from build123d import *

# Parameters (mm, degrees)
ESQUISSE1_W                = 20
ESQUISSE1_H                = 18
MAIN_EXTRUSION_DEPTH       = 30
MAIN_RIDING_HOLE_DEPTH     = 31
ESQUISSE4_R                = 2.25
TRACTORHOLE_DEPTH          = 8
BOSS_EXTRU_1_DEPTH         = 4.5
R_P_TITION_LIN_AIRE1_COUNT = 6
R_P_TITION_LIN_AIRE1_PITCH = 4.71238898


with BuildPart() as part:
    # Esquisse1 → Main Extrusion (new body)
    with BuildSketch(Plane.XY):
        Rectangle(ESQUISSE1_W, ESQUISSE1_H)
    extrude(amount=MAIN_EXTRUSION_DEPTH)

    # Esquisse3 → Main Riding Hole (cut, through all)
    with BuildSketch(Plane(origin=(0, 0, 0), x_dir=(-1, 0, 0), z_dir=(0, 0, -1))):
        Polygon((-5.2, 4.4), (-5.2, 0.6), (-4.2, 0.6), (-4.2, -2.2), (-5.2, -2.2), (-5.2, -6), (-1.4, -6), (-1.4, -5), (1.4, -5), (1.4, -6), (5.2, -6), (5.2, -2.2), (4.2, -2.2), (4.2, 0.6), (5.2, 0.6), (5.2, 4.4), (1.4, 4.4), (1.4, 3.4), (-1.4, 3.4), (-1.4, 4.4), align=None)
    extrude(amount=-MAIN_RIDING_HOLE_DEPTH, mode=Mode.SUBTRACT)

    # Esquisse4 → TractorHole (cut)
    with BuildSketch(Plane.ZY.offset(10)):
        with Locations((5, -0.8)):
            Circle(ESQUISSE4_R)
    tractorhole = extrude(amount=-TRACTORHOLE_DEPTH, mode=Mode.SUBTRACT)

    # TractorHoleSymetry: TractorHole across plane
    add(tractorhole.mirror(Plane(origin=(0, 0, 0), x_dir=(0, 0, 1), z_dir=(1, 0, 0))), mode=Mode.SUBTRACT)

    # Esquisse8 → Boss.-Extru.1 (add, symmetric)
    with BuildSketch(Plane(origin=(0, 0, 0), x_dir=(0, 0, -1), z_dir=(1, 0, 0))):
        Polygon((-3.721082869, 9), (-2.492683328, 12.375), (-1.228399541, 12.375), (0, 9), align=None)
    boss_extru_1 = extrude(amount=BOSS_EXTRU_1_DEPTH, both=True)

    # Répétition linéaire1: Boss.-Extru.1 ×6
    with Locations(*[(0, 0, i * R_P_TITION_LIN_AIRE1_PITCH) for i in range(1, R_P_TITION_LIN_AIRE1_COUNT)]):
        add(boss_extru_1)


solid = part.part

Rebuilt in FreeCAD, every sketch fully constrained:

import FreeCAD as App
import Part
import Sketcher

V = App.Vector
Q = App.Units.Quantity

doc = App.newDocument("Part")
params = doc.addObject("Spreadsheet::Sheet", "Params")
for row, (alias, value) in enumerate([
    ("sketch1_width", "20 mm"),
    ("sketch1_height", "18 mm"),
    ("pad1_length", "30 mm"),
    ("sketch2_width", "1 mm"),
    ("sketch2_width2", "3.8 mm"),
    ("sketch2_width3", "2.8 mm"),
    ("sketch3_diameter", "4.5 mm"),
    ("pocket2_length", "8 mm"),
    ("pad2_length", "9 mm"),
    ("linearpattern_pitch", "4.712389 mm"),
], start=1):
    params.set(f"A{row}", alias)
    params.set(f"B{row}", "=" + value)
    params.setAlias(f"B{row}", alias)

body = doc.addObject("PartDesign::Body", "Body")

sketch1 = body.newObject("Sketcher::SketchObject", "Sketch")
sketch1.AttachmentSupport = (doc.getObject("XY_Plane"), [""])
sketch1.MapMode = "FlatFace"
sketch1.addGeometry(Part.LineSegment(V(-10, 9, 0), V(-10, -9, 0)), False)
sketch1.addGeometry(Part.LineSegment(V(-10, -9, 0), V(10, -9, 0)), False)
sketch1.addGeometry(Part.LineSegment(V(10, -9, 0), V(10, 9, 0)), False)
sketch1.addGeometry(Part.LineSegment(V(10, 9, 0), V(-10, 9, 0)), False)
sketch1.addConstraint(Sketcher.Constraint("Coincident", 0, 2, 1, 1))
sketch1.addConstraint(Sketcher.Constraint("Coincident", 1, 2, 2, 1))
sketch1.addConstraint(Sketcher.Constraint("Coincident", 2, 2, 3, 1))
sketch1.addConstraint(Sketcher.Constraint("Coincident", 3, 2, 0, 1))
sketch1.addConstraint(Sketcher.Constraint("Vertical", 0))
sketch1.addConstraint(Sketcher.Constraint("Horizontal", 1))
sketch1.addConstraint(Sketcher.Constraint("Vertical", 2))
sketch1.addConstraint(Sketcher.Constraint("Horizontal", 3))
sketch1.addConstraint(Sketcher.Constraint("Symmetric", 0, 2, 2, 2, -1, 1))
sketch1.addConstraint(Sketcher.Constraint("DistanceX", 1, 1, 1, 2, Q("20 mm")))
sketch1.addConstraint(Sketcher.Constraint("DistanceY", 0, 2, 0, 1, Q("18 mm")))
sketch1.setExpression("Constraints[9]", "Params.sketch1_width")
sketch1.setExpression("Constraints[10]", "Params.sketch1_height")
pad1 = body.newObject("PartDesign::Pad", "Pad")
pad1.Profile = sketch1
pad1.setExpression("Length", "Params.pad1_length")

sketch2 = body.newObject("Sketcher::SketchObject", "Sketch001")
sketch2.AttachmentSupport = (doc.getObject("XY_Plane"), [""])
sketch2.MapMode = "FlatFace"
sketch2.addGeometry(Part.LineSegment(V(5.2, 4.4, 0), V(5.2, 0.6, 0)), False)
sketch2.addGeometry(Part.LineSegment(V(5.2, 0.6, 0), V(4.2, 0.6, 0)), False)
sketch2.addGeometry(Part.LineSegment(V(4.2, 0.6, 0), V(4.2, -2.2, 0)), False)
sketch2.addGeometry(Part.LineSegment(V(4.2, -2.2, 0), V(5.2, -2.2, 0)), False)
sketch2.addGeometry(Part.LineSegment(V(5.2, -2.2, 0), V(5.2, -6, 0)), False)
sketch2.addGeometry(Part.LineSegment(V(5.2, -6, 0), V(1.4, -6, 0)), False)
sketch2.addGeometry(Part.LineSegment(V(1.4, -6, 0), V(1.4, -5, 0)), False)
sketch2.addGeometry(Part.LineSegment(V(1.4, -5, 0), V(-1.4, -5, 0)), False)
sketch2.addGeometry(Part.LineSegment(V(-1.4, -5, 0), V(-1.4, -6, 0)), False)
sketch2.addGeometry(Part.LineSegment(V(-1.4, -6, 0), V(-5.2, -6, 0)), False)
sketch2.addGeometry(Part.LineSegment(V(-5.2, -6, 0), V(-5.2, -2.2, 0)), False)
sketch2.addGeometry(Part.LineSegment(V(-5.2, -2.2, 0), V(-4.2, -2.2, 0)), False)
sketch2.addGeometry(Part.LineSegment(V(-4.2, -2.2, 0), V(-4.2, 0.6, 0)), False)
sketch2.addGeometry(Part.LineSegment(V(-4.2, 0.6, 0), V(-5.2, 0.6, 0)), False)
sketch2.addGeometry(Part.LineSegment(V(-5.2, 0.6, 0), V(-5.2, 4.4, 0)), False)
sketch2.addGeometry(Part.LineSegment(V(-5.2, 4.4, 0), V(-1.4, 4.4, 0)), False)
sketch2.addGeometry(Part.LineSegment(V(-1.4, 4.4, 0), V(-1.4, 3.4, 0)), False)
sketch2.addGeometry(Part.LineSegment(V(-1.4, 3.4, 0), V(1.4, 3.4, 0)), False)
sketch2.addGeometry(Part.LineSegment(V(1.4, 3.4, 0), V(1.4, 4.4, 0)), False)
sketch2.addGeometry(Part.LineSegment(V(1.4, 4.4, 0), V(5.2, 4.4, 0)), False)
sketch2.addConstraint(Sketcher.Constraint("Coincident", 0, 2, 1, 1))
sketch2.addConstraint(Sketcher.Constraint("Coincident", 1, 2, 2, 1))
sketch2.addConstraint(Sketcher.Constraint("Coincident", 2, 2, 3, 1))
sketch2.addConstraint(Sketcher.Constraint("Coincident", 3, 2, 4, 1))
sketch2.addConstraint(Sketcher.Constraint("Coincident", 4, 2, 5, 1))
sketch2.addConstraint(Sketcher.Constraint("Coincident", 5, 2, 6, 1))
sketch2.addConstraint(Sketcher.Constraint("Coincident", 6, 2, 7, 1))
sketch2.addConstraint(Sketcher.Constraint("Coincident", 7, 2, 8, 1))
sketch2.addConstraint(Sketcher.Constraint("Coincident", 8, 2, 9, 1))
sketch2.addConstraint(Sketcher.Constraint("Coincident", 9, 2, 10, 1))
sketch2.addConstraint(Sketcher.Constraint("Coincident", 10, 2, 11, 1))
sketch2.addConstraint(Sketcher.Constraint("Coincident", 11, 2, 12, 1))
sketch2.addConstraint(Sketcher.Constraint("Coincident", 12, 2, 13, 1))
sketch2.addConstraint(Sketcher.Constraint("Coincident", 13, 2, 14, 1))
sketch2.addConstraint(Sketcher.Constraint("Coincident", 14, 2, 15, 1))
sketch2.addConstraint(Sketcher.Constraint("Coincident", 15, 2, 16, 1))
sketch2.addConstraint(Sketcher.Constraint("Coincident", 16, 2, 17, 1))
sketch2.addConstraint(Sketcher.Constraint("Coincident", 17, 2, 18, 1))
sketch2.addConstraint(Sketcher.Constraint("Coincident", 18, 2, 19, 1))
sketch2.addConstraint(Sketcher.Constraint("Coincident", 19, 2, 0, 1))
sketch2.addConstraint(Sketcher.Constraint("Vertical", 0))
sketch2.addConstraint(Sketcher.Constraint("Horizontal", 1))
sketch2.addConstraint(Sketcher.Constraint("Vertical", 2))
sketch2.addConstraint(Sketcher.Constraint("Horizontal", 3))
sketch2.addConstraint(Sketcher.Constraint("Vertical", 4))
sketch2.addConstraint(Sketcher.Constraint("Horizontal", 5))
sketch2.addConstraint(Sketcher.Constraint("Vertical", 6))
sketch2.addConstraint(Sketcher.Constraint("Horizontal", 7))
sketch2.addConstraint(Sketcher.Constraint("Vertical", 8))
sketch2.addConstraint(Sketcher.Constraint("Horizontal", 9))
sketch2.addConstraint(Sketcher.Constraint("Vertical", 10))
sketch2.addConstraint(Sketcher.Constraint("Horizontal", 11))
sketch2.addConstraint(Sketcher.Constraint("Vertical", 12))
sketch2.addConstraint(Sketcher.Constraint("Horizontal", 13))
sketch2.addConstraint(Sketcher.Constraint("Vertical", 14))
sketch2.addConstraint(Sketcher.Constraint("Horizontal", 15))
sketch2.addConstraint(Sketcher.Constraint("Vertical", 16))
sketch2.addConstraint(Sketcher.Constraint("Horizontal", 17))
sketch2.addConstraint(Sketcher.Constraint("Vertical", 18))
sketch2.addConstraint(Sketcher.Constraint("Horizontal", 19))
sketch2.addConstraint(Sketcher.Constraint("Symmetric", 5, 2, 8, 2, -2))
sketch2.addConstraint(Sketcher.Constraint("Symmetric", 3, 2, 10, 2, -2))
sketch2.addConstraint(Sketcher.Constraint("Symmetric", 1, 2, 12, 2, -2))
sketch2.addConstraint(Sketcher.Constraint("Symmetric", 15, 2, 18, 2, -2))
sketch2.addConstraint(Sketcher.Constraint("Vertical", 0, 2, 3, 2))
sketch2.addConstraint(Sketcher.Constraint("Vertical", 10, 2, 13, 2))
sketch2.addConstraint(Sketcher.Constraint("Vertical", 8, 2, 15, 2))
sketch2.addConstraint(Sketcher.Constraint("Equal", 19, 0))
sketch2.addConstraint(Sketcher.Constraint("Equal", 17, 2))
sketch2.addConstraint(Sketcher.Constraint("Equal", 0, 4))
sketch2.addConstraint(Sketcher.Constraint("Equal", 13, 6))
sketch2.addConstraint(Sketcher.Constraint("Equal", 8, 16))
sketch2.addConstraint(Sketcher.Constraint("DistanceX", 1, 2, 1, 1, Q("1 mm")))
sketch2.addConstraint(Sketcher.Constraint("DistanceX", 5, 2, 5, 1, Q("3.8 mm")))
sketch2.addConstraint(Sketcher.Constraint("DistanceX", 7, 2, 7, 1, Q("2.8 mm")))
sketch2.addConstraint(Sketcher.Constraint("DistanceY", 4, 2, -1, 1, Q("6 mm")))
sketch2.setExpression("Constraints[52]", "Params.sketch2_width")
sketch2.setExpression("Constraints[53]", "Params.sketch2_width2")
sketch2.setExpression("Constraints[54]", "Params.sketch2_width3")
pocket1 = body.newObject("PartDesign::Pocket", "Pocket")
pocket1.Profile = sketch2
pocket1.Type = "ThroughAll"
pocket1.Reversed = True

sketch3 = body.newObject("Sketcher::SketchObject", "Sketch002")
sketch3.AttachmentSupport = (doc.getObject("YZ_Plane"), [""])
sketch3.MapMode = "FlatFace"
sketch3.AttachmentOffset = App.Placement(V(0, 0, -10), App.Rotation())
sketch3.addGeometry(Part.Circle(V(-0.8, 5, 0), V(0, 0, 1), 2.2), False)
sketch3.addConstraint(Sketcher.Constraint("Diameter", 0, Q("4.5 mm")))
sketch3.addConstraint(Sketcher.Constraint("DistanceY", -1, 1, 0, 3, Q("5 mm")))
sketch3.addConstraint(Sketcher.Constraint("DistanceX", 0, 3, -1, 1, Q("0.8 mm")))
sketch3.setExpression("Constraints[0]", "Params.sketch3_diameter")
pocket2 = body.newObject("PartDesign::Pocket", "Pocket001")
pocket2.Profile = sketch3
pocket2.setExpression("Length", "Params.pocket2_length")
pocket2.Reversed = True
doc.recompute()

mirrored = body.newObject("PartDesign::Mirrored", "Mirrored")
mirrored.Originals = [pocket2]
mirrored.MirrorPlane = (doc.getObject("YZ_Plane"), [""])
body.Tip = mirrored

sketch4 = body.newObject("Sketcher::SketchObject", "Sketch003")
sketch4.AttachmentSupport = (doc.getObject("YZ_Plane"), [""])
sketch4.MapMode = "FlatFace"
sketch4.addGeometry(Part.LineSegment(V(12.4, 2.5, 0), V(9, 3.7, 0)), False)
sketch4.addGeometry(Part.LineSegment(V(9, 3.7, 0), V(9, 0, 0)), False)
sketch4.addGeometry(Part.LineSegment(V(9, 0, 0), V(12.4, 1.2, 0)), False)
sketch4.addGeometry(Part.LineSegment(V(12.4, 1.2, 0), V(12.4, 2.5, 0)), False)
sketch4.addConstraint(Sketcher.Constraint("Coincident", 0, 2, 1, 1))
sketch4.addConstraint(Sketcher.Constraint("Coincident", 1, 2, 2, 1))
sketch4.addConstraint(Sketcher.Constraint("Coincident", 2, 2, 3, 1))
sketch4.addConstraint(Sketcher.Constraint("Coincident", 3, 2, 0, 1))
sketch4.addConstraint(Sketcher.Constraint("Vertical", 1))
sketch4.addConstraint(Sketcher.Constraint("Vertical", 3))
sketch4.addConstraint(Sketcher.Constraint("PointOnObject", 1, 2, -1))
sketch4.addConstraint(Sketcher.Constraint("Equal", 0, 2))
sketch4.addConstraint(Sketcher.Constraint("Angle", 0, Q("160 deg")))
sketch4.addConstraint(Sketcher.Constraint("DistanceX", -1, 1, 0, 2, Q("9 mm")))
sketch4.addConstraint(Sketcher.Constraint("DistanceX", -1, 1, 2, 2, Q("12.375 mm")))
sketch4.addConstraint(Sketcher.Constraint("DistanceY", 1, 2, 1, 1, Q("3.721083 mm")))
pad2 = body.newObject("PartDesign::Pad", "Pad001")
pad2.Profile = sketch4
pad2.setExpression("Length", "Params.pad2_length")
pad2.Midplane = True
doc.recompute()

linearpattern = body.newObject("PartDesign::LinearPattern", "LinearPattern")
linearpattern.Originals = [pad2]
linearpattern.Direction = (doc.getObject("Z_Axis"), [""])
linearpattern.Mode = "offset"
linearpattern.setExpression("Offset", "Params.linearpattern_pitch")
linearpattern.Occurrences = 6
body.Tip = linearpattern

doc.recompute()
